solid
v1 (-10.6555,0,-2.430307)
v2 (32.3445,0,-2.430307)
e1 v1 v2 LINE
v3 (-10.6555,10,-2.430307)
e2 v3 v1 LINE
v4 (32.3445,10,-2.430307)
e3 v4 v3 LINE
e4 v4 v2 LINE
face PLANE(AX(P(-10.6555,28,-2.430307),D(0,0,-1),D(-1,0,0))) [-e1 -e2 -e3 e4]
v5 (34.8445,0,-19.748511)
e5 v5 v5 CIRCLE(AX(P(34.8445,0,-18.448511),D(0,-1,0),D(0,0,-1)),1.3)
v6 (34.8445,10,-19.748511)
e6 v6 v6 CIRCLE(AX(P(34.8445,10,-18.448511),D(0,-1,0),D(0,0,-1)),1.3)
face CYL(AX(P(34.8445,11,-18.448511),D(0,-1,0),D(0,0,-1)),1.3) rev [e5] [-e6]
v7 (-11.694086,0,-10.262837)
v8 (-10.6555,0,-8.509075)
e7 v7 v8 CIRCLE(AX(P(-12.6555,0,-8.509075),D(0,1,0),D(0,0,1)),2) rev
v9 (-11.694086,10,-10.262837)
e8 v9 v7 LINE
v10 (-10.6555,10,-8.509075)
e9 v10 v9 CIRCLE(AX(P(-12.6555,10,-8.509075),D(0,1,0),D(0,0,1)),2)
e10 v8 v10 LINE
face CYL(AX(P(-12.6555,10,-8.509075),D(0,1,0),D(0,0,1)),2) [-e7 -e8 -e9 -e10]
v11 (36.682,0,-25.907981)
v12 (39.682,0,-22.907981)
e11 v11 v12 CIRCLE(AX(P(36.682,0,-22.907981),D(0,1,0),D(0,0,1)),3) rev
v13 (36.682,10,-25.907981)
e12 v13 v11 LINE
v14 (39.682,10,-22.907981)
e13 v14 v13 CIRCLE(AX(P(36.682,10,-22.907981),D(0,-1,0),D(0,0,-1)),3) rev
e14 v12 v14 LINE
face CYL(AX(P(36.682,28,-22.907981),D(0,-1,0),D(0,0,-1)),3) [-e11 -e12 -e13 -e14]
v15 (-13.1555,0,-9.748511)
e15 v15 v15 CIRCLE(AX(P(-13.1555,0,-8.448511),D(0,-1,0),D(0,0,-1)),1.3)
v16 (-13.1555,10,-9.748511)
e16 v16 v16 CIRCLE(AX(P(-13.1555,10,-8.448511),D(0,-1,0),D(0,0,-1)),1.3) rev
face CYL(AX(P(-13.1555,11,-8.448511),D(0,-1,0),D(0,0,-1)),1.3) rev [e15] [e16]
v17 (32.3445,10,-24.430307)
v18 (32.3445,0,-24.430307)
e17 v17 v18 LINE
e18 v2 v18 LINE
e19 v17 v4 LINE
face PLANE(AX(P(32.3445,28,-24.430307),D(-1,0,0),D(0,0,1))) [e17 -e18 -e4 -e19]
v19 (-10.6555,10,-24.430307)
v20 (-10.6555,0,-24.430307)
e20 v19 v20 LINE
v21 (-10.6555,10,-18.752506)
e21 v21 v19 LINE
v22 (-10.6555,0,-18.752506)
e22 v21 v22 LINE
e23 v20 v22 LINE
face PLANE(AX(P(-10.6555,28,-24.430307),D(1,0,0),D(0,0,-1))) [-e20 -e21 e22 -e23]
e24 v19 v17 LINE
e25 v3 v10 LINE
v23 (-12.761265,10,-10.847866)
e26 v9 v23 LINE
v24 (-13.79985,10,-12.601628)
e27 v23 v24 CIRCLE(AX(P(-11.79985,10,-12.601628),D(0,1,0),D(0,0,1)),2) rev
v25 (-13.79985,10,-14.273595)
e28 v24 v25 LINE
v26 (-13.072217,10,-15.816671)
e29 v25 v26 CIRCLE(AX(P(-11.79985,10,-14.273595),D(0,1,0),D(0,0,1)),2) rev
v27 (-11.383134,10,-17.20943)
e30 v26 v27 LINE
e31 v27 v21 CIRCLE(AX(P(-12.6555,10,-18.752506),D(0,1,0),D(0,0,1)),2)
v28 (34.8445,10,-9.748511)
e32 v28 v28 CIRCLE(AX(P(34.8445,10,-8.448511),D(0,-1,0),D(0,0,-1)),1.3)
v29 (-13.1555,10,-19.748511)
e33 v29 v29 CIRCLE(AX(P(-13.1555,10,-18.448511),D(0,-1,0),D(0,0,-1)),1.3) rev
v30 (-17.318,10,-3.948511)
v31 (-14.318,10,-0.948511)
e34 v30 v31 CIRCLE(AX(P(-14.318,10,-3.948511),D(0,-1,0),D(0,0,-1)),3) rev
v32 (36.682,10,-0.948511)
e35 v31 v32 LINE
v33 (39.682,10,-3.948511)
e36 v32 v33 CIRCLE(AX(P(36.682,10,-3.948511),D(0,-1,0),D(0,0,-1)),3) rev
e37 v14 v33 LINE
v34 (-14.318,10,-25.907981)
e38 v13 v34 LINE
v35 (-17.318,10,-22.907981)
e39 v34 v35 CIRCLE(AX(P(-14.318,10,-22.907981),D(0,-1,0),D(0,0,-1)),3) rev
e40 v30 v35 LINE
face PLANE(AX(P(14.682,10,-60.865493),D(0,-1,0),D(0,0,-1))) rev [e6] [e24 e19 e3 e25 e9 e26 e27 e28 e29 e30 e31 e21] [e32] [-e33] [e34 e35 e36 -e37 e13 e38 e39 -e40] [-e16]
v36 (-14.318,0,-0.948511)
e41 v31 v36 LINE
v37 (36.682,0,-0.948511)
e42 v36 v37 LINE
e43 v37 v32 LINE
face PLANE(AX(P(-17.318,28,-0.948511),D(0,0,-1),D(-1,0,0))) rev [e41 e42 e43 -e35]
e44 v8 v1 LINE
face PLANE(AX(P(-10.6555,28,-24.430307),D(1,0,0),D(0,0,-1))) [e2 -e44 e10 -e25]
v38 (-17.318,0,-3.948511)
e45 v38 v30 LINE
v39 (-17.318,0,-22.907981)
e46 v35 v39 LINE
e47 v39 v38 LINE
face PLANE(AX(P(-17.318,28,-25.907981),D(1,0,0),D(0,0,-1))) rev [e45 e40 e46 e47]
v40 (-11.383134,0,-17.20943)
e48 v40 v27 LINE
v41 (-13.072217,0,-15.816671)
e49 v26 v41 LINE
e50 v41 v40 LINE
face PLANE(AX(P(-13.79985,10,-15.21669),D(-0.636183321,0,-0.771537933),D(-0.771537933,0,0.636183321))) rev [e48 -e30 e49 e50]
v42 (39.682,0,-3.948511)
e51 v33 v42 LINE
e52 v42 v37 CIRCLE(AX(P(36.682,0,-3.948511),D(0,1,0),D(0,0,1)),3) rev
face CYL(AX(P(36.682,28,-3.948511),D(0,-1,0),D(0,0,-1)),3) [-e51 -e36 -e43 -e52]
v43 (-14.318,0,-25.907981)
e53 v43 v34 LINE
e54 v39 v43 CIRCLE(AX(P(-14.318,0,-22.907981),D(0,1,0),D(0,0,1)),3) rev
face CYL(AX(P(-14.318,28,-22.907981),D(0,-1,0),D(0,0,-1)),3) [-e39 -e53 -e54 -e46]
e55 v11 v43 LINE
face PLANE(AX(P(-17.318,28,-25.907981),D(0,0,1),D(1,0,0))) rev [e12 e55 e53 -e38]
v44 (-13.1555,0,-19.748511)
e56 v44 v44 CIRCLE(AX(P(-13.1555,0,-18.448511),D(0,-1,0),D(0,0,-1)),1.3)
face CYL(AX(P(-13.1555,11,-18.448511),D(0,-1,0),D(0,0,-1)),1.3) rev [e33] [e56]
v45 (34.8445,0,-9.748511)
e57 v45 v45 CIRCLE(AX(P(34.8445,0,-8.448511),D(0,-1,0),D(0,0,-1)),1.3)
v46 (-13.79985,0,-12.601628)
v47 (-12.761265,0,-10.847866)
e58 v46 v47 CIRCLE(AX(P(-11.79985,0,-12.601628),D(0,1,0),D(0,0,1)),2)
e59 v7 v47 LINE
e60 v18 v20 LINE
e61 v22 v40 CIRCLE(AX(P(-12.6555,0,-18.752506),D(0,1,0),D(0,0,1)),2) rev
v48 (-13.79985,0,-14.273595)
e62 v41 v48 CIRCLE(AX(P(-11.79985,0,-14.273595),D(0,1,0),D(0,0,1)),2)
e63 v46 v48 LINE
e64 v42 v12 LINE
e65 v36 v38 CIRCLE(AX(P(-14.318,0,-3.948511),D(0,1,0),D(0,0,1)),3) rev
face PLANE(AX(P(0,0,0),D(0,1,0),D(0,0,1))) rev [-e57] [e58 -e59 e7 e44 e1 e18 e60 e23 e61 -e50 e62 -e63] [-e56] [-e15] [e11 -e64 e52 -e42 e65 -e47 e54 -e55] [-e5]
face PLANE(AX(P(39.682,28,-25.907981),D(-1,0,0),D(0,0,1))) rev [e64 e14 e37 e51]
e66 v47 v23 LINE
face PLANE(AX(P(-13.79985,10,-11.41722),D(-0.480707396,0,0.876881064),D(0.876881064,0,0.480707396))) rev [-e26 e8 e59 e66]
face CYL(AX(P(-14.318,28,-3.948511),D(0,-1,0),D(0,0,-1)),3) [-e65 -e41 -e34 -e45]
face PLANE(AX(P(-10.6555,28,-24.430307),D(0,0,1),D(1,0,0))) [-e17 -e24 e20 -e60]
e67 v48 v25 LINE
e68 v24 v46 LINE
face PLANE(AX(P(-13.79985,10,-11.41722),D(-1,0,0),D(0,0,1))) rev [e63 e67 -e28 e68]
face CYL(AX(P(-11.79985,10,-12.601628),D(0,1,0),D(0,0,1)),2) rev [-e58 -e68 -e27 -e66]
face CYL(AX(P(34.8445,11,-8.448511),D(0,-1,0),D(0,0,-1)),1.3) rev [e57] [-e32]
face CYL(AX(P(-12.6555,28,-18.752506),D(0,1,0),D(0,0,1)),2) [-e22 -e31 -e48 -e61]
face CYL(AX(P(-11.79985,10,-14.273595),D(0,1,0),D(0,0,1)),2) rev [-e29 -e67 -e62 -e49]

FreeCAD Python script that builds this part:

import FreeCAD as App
import Part
import Sketcher


def edges_at(feature, points):
    """Names of the edges that pass closest to the given points."""
    edges = feature.Shape.Edges
    near = lambda p: min(range(len(edges)), key=lambda i: edges[i].distToShape(Part.Vertex(*p))[0])
    return sorted({f"Edge{near(p) + 1}" for p in points})

doc = App.newDocument("Part")
body = doc.addObject("PartDesign::Body", "Body")

# Sketch on XZ plane
sketch1 = body.newObject("Sketcher::SketchObject", "Sketch")
sketch1.AttachmentSupport = (doc.getObject("XZ_Plane"), [""])
sketch1.MapMode = "FlatFace"
sketch1.addGeometry(Part.LineSegment(App.Vector(-17, -26, 0), App.Vector(-17, -1, 0)), False)
sketch1.addGeometry(Part.LineSegment(App.Vector(-17, -1, 0), App.Vector(40, -1, 0)), False)
sketch1.addGeometry(Part.LineSegment(App.Vector(40, -1, 0), App.Vector(40, -26, 0)), False)
sketch1.addGeometry(Part.LineSegment(App.Vector(40, -26, 0), App.Vector(-17, -26, 0)), False)
sketch1.addGeometry(Part.LineSegment(App.Vector(32, -2, 0), App.Vector(-11, -2, 0)), False)
sketch1.addGeometry(Part.LineSegment(App.Vector(-11, -2, 0), App.Vector(-11, -24, 0)), False)
sketch1.addGeometry(Part.LineSegment(App.Vector(-11, -24, 0), App.Vector(32, -24, 0)), False)
sketch1.addGeometry(Part.LineSegment(App.Vector(32, -24, 0), App.Vector(32, -2, 0)), False)
sketch1.addConstraint(Sketcher.Constraint("Coincident", 0, 2, 1, 1))
sketch1.addConstraint(Sketcher.Constraint("Coincident", 1, 2, 2, 1))
sketch1.addConstraint(Sketcher.Constraint("Coincident", 2, 2, 3, 1))
sketch1.addConstraint(Sketcher.Constraint("Coincident", 3, 2, 0, 1))
sketch1.addConstraint(Sketcher.Constraint("Coincident", 4, 2, 5, 1))
sketch1.addConstraint(Sketcher.Constraint("Coincident", 5, 2, 6, 1))
sketch1.addConstraint(Sketcher.Constraint("Coincident", 6, 2, 7, 1))
sketch1.addConstraint(Sketcher.Constraint("Coincident", 7, 2, 4, 1))
sketch1.addConstraint(Sketcher.Constraint("Vertical", 0))
sketch1.addConstraint(Sketcher.Constraint("Horizontal", 1))
sketch1.addConstraint(Sketcher.Constraint("Vertical", 2))
sketch1.addConstraint(Sketcher.Constraint("Horizontal", 3))
sketch1.addConstraint(Sketcher.Constraint("Horizontal", 4))
sketch1.addConstraint(Sketcher.Constraint("Vertical", 5))
sketch1.addConstraint(Sketcher.Constraint("Horizontal", 6))
sketch1.addConstraint(Sketcher.Constraint("Vertical", 7))
sketch1.addConstraint(Sketcher.Constraint("DistanceX", 1, 1, 1, 2, 57.0))
sketch1.addConstraint(Sketcher.Constraint("DistanceX", 4, 2, 4, 1, 43.0))
sketch1.addConstraint(Sketcher.Constraint("DistanceY", 5, 2, 5, 1, 22.0))
sketch1.addConstraint(Sketcher.Constraint("DistanceX", 0, 2, -1, 1, 17.318))
sketch1.addConstraint(Sketcher.Constraint("DistanceY", 0, 1, 0, 2, 24.95947))
sketch1.addConstraint(Sketcher.Constraint("DistanceX", 4, 2, -1, 1, 10.6555))
sketch1.addConstraint(Sketcher.Constraint("DistanceY", 0, 2, -1, 1, 0.948511))
sketch1.addConstraint(Sketcher.Constraint("DistanceY", 4, 2, -1, 1, 2.430307))
pad1 = body.newObject("PartDesign::Pad", "Pad")
pad1.Profile = sketch1
pad1.Length = 28
pad1.Reversed = True

# Sketch on XY plane
sketch2 = body.newObject("Sketcher::SketchObject", "Sketch001")
sketch2.AttachmentSupport = (doc.getObject("XY_Plane"), [""])
sketch2.MapMode = "FlatFace"
sketch2.AttachmentOffset = App.Placement(App.Vector(0, 0, -0.948511), App.Rotation())
sketch2.addGeometry(Part.LineSegment(App.Vector(15, 31, 0), App.Vector(15, 10, 0)), False)
sketch2.addGeometry(Part.LineSegment(App.Vector(15, 10, 0), App.Vector(43, 10, 0)), False)
sketch2.addGeometry(Part.LineSegment(App.Vector(43, 10, 0), App.Vector(43, 31, 0)), False)
sketch2.addGeometry(Part.LineSegment(App.Vector(43, 31, 0), App.Vector(15, 31, 0)), False)
sketch2.addConstraint(Sketcher.Constraint("Coincident", 0, 2, 1, 1))
sketch2.addConstraint(Sketcher.Constraint("Coincident", 1, 2, 2, 1))
sketch2.addConstraint(Sketcher.Constraint("Coincident", 2, 2, 3, 1))
sketch2.addConstraint(Sketcher.Constraint("Coincident", 3, 2, 0, 1))
sketch2.addConstraint(Sketcher.Constraint("Vertical", 0))
sketch2.addConstraint(Sketcher.Constraint("Horizontal", 1))
sketch2.addConstraint(Sketcher.Constraint("Vertical", 2))
sketch2.addConstraint(Sketcher.Constraint("Horizontal", 3))
sketch2.addConstraint(Sketcher.Constraint("DistanceY", -1, 1, 0, 2, 10.0))
sketch2.addConstraint(Sketcher.Constraint("DistanceX", -1, 1, 0, 2, 14.682))
sketch2.addConstraint(Sketcher.Constraint("DistanceY", 0, 2, 0, 1, 20.987972))
sketch2.addConstraint(Sketcher.Constraint("DistanceX", 1, 1, 1, 2, 27.955905))
pocket1 = body.newObject("PartDesign::Pocket", "Pocket")
pocket1.Profile = sketch2
pocket1.Length = 24.95947

# Sketch on XZ plane
sketch3 = body.newObject("Sketcher::SketchObject", "Sketch002")
sketch3.AttachmentSupport = (doc.getObject("XZ_Plane"), [""])
sketch3.MapMode = "FlatFace"
sketch3.AttachmentOffset = App.Placement(App.Vector(0, 0, -28), App.Rotation())
sketch3.addGeometry(Part.LineSegment(App.Vector(-17, -26, 0), App.Vector(-17, -1, 0)), False)
sketch3.addGeometry(Part.LineSegment(App.Vector(-17, -1, 0), App.Vector(15, -1, 0)), False)
sketch3.addGeometry(Part.LineSegment(App.Vector(15, -1, 0), App.Vector(15, -26, 0)), False)
sketch3.addGeometry(Part.LineSegment(App.Vector(15, -26, 0), App.Vector(-17, -26, 0)), False)
sketch3.addConstraint(Sketcher.Constraint("Coincident", 0, 2, 1, 1))
sketch3.addConstraint(Sketcher.Constraint("Coincident", 1, 2, 2, 1))
sketch3.addConstraint(Sketcher.Constraint("Coincident", 2, 2, 3, 1))
sketch3.addConstraint(Sketcher.Constraint("Coincident", 3, 2, 0, 1))
sketch3.addConstraint(Sketcher.Constraint("Vertical", 0))
sketch3.addConstraint(Sketcher.Constraint("Horizontal", 1))
sketch3.addConstraint(Sketcher.Constraint("Vertical", 2))
sketch3.addConstraint(Sketcher.Constraint("Horizontal", 3))
sketch3.addConstraint(Sketcher.Constraint("DistanceX", 1, 1, 1, 2, 32.0))
sketch3.addConstraint(Sketcher.Constraint("DistanceX", 0, 2, -1, 1, 17.318))
sketch3.addConstraint(Sketcher.Constraint("DistanceY", 0, 1, 0, 2, 24.95947))
sketch3.addConstraint(Sketcher.Constraint("DistanceY", 0, 2, -1, 1, 0.948511))
pad2 = body.newObject("PartDesign::Pad", "Pad001")
pad2.Profile = sketch3
pad2.Length = 2.25
pad2.Reversed = True
doc.recompute()

fillet = body.newObject("PartDesign::Fillet", "Fillet")
fillet.Base = (pad2, edges_at(pad2, [
    (39.682, 5, -25.908),
    (39.682, 5, -0.949),
    (-17.318, 15.125, -25.908),
    (-17.318, 15.125, -0.949),
]))
fillet.Radius = 3

# Sketch on XZ plane
sketch4 = body.newObject("Sketcher::SketchObject", "Sketch003")
sketch4.AttachmentSupport = (doc.getObject("XZ_Plane"), [""])
sketch4.MapMode = "FlatFace"
sketch4.addGeometry(Part.Circle(App.Vector(-13.2, -8.4, 0), App.Vector(0, 0, 1), 1.3), False)
sketch4.addGeometry(Part.Circle(App.Vector(-13.2, -18.4, 0), App.Vector(0, 0, 1), 1.3), False)
sketch4.addGeometry(Part.Circle(App.Vector(34.8, -8.4, 0), App.Vector(0, 0, 1), 1.3), False)
sketch4.addGeometry(Part.Circle(App.Vector(34.8, -18.4, 0), App.Vector(0, 0, 1), 1.3), False)
sketch4.addConstraint(Sketcher.Constraint("Equal", 0, 1))
sketch4.addConstraint(Sketcher.Constraint("Equal", 1, 2))
sketch4.addConstraint(Sketcher.Constraint("Equal", 2, 3))
sketch4.addConstraint(Sketcher.Constraint("Horizontal", 0, 3, 2, 3))
sketch4.addConstraint(Sketcher.Constraint("Horizontal", 1, 3, 3, 3))
sketch4.addConstraint(Sketcher.Constraint("Vertical", 0, 3, 1, 3))
sketch4.addConstraint(Sketcher.Constraint("Vertical", 2, 3, 3, 3))
sketch4.addConstraint(Sketcher.Constraint("Diameter", 0, 2.6))
sketch4.addConstraint(Sketcher.Constraint("DistanceY", 1, 3, 0, 3, 10.0))
sketch4.addConstraint(Sketcher.Constraint("DistanceX", 0, 3, 2, 3, 48.0))
sketch4.addConstraint(Sketcher.Constraint("DistanceX", 0, 3, -1, 1, 13.1555))
sketch4.addConstraint(Sketcher.Constraint("DistanceY", 0, 3, -1, 1, 8.448511))
pocket2 = body.newObject("PartDesign::Pocket", "Pocket001")
pocket2.Profile = sketch4
pocket2.Length = 11

# Sketch on XZ plane
sketch5 = body.newObject("Sketcher::SketchObject", "Sketch004")
sketch5.AttachmentSupport = (doc.getObject("XZ_Plane"), [""])
sketch5.MapMode = "FlatFace"
sketch5.addGeometry(Part.LineSegment(App.Vector(-10.7, -17.8, 0), App.Vector(-10.7, -9.7, 0)), False)
sketch5.addGeometry(Part.LineSegment(App.Vector(-10.7, -9.7, 0), App.Vector(-13.8, -11.4, 0)), False)
sketch5.addGeometry(Part.LineSegment(App.Vector(-13.8, -11.4, 0), App.Vector(-13.8, -15.2, 0)), False)
sketch5.addGeometry(Part.LineSegment(App.Vector(-13.8, -15.2, 0), App.Vector(-10.7, -17.8, 0)), False)
sketch5.addConstraint(Sketcher.Constraint("Coincident", 0, 2, 1, 1))
sketch5.addConstraint(Sketcher.Constraint("Coincident", 1, 2, 2, 1))
sketch5.addConstraint(Sketcher.Constraint("Coincident", 2, 2, 3, 1))
sketch5.addConstraint(Sketcher.Constraint("Coincident", 3, 2, 0, 1))
sketch5.addConstraint(Sketcher.Constraint("Vertical", 0))
sketch5.addConstraint(Sketcher.Constraint("Vertical", 2))
sketch5.addConstraint(Sketcher.Constraint("DistanceY", 2, 2, 2, 1, 3.79947))
sketch5.addConstraint(Sketcher.Constraint("DistanceX", 0, 2, -1, 1, 10.6555))
sketch5.addConstraint(Sketcher.Constraint("Distance", 3, 4.075431))
sketch5.addConstraint(Sketcher.Constraint("DistanceY", 0, 1, 0, 2, 8.115928))
sketch5.addConstraint(Sketcher.Constraint("DistanceX", 1, 2, -1, 1, 13.79985))
sketch5.addConstraint(Sketcher.Constraint("DistanceY", 1, 2, -1, 1, 11.41722))
pocket3 = body.newObject("PartDesign::Pocket", "Pocket002")
pocket3.Profile = sketch5
pocket3.Length = 10
doc.recompute()

fillet2 = body.newObject("PartDesign::Fillet", "Fillet001")
fillet2.Base = (pocket3, edges_at(pocket3, [
    (-13.8, 5, -11.417),
    (-10.656, 5, -9.693),
    (-10.656, 5, -17.809),
    (-13.8, 5, -15.217),
]))
fillet2.Radius = 2

# Sketch on XY plane
sketch6 = body.newObject("Sketcher::SketchObject", "Sketch005")
sketch6.AttachmentSupport = (doc.getObject("XY_Plane"), [""])
sketch6.MapMode = "FlatFace"
sketch6.AttachmentOffset = App.Placement(App.Vector(0, 0, -0.948511), App.Rotation())
sketch6.addGeometry(Part.LineSegment(App.Vector(-19, 10, 0), App.Vector(41, 10, 0)), False)
sketch6.addGeometry(Part.LineSegment(App.Vector(41, 10, 0), App.Vector(41, 39, 0)), False)
sketch6.addGeometry(Part.LineSegment(App.Vector(41, 39, 0), App.Vector(-19, 39, 0)), False)
sketch6.addGeometry(Part.LineSegment(App.Vector(-19, 39, 0), App.Vector(-19, 10, 0)), False)
sketch6.addConstraint(Sketcher.Constraint("Coincident", 0, 2, 1, 1))
sketch6.addConstraint(Sketcher.Constraint("Coincident", 1, 2, 2, 1))
sketch6.addConstraint(Sketcher.Constraint("Coincident", 2, 2, 3, 1))
sketch6.addConstraint(Sketcher.Constraint("Coincident", 3, 2, 0, 1))
sketch6.addConstraint(Sketcher.Constraint("Horizontal", 0))
sketch6.addConstraint(Sketcher.Constraint("Vertical", 1))
sketch6.addConstraint(Sketcher.Constraint("Horizontal", 2))
sketch6.addConstraint(Sketcher.Constraint("Vertical", 3))
sketch6.addConstraint(Sketcher.Constraint("DistanceY", -1, 1, 0, 2, 10.0))
sketch6.addConstraint(Sketcher.Constraint("DistanceX", 0, 1, 0, 2, 60.003665))
sketch6.addConstraint(Sketcher.Constraint("DistanceY", 1, 1, 1, 2, 28.904482))
sketch6.addConstraint(Sketcher.Constraint("DistanceX", -1, 1, 0, 2, 41.252258))
pocket4 = body.newObject("PartDesign::Pocket", "Pocket003")
pocket4.Profile = sketch6
pocket4.Length = 24.95947

doc.recompute()
